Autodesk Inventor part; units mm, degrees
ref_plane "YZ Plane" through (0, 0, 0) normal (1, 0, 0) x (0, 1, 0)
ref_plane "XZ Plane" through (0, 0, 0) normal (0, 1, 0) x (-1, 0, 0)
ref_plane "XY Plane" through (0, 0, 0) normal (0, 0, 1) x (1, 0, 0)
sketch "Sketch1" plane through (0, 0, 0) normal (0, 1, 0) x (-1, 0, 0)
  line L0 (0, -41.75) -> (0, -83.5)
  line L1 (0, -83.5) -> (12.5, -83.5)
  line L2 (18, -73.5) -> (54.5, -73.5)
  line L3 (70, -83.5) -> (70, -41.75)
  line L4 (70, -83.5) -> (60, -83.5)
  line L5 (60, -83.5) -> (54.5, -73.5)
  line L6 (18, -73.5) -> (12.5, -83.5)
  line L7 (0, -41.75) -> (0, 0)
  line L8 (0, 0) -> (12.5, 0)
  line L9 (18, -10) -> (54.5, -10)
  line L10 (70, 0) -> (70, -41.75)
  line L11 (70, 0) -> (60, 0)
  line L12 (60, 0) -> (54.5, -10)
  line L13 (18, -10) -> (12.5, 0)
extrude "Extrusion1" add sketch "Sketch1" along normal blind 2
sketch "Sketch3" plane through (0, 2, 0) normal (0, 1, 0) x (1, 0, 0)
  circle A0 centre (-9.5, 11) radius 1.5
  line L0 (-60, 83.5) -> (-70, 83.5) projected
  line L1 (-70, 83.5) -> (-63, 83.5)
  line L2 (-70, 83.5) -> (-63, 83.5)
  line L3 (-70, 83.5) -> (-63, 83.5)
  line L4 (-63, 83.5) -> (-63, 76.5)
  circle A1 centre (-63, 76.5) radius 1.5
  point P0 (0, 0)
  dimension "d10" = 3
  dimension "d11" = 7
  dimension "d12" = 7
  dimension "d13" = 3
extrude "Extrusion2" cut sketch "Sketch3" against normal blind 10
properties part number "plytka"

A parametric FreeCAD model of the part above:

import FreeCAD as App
import Part
import Sketcher

V = App.Vector

doc = App.newDocument("Part")
body = doc.addObject("PartDesign::Body", "Body")

sketch1 = body.newObject("Sketcher::SketchObject", "Sketch")
sketch1.AttachmentSupport = (doc.getObject("XZ_Plane"), [""])
sketch1.MapMode = "FlatFace"
sketch1.addGeometry([
    Part.LineSegment(V(0, 0, 0), V(0, -84, 0)),
    Part.LineSegment(V(0, -84, 0), V(-12, -84, 0)),
    Part.LineSegment(V(-12, -84, 0), V(-18, -74, 0)),
    Part.LineSegment(V(-18, -74, 0), V(-54, -74, 0)),
    Part.LineSegment(V(-54, -74, 0), V(-60, -84, 0)),
    Part.LineSegment(V(-60, -84, 0), V(-70, -84, 0)),
    Part.LineSegment(V(-70, -84, 0), V(-70, 0, 0)),
    Part.LineSegment(V(-70, 0, 0), V(-60, 0, 0)),
    Part.LineSegment(V(-60, 0, 0), V(-54, -10, 0)),
    Part.LineSegment(V(-54, -10, 0), V(-18, -10, 0)),
    Part.LineSegment(V(-18, -10, 0), V(-12, 0, 0)),
    Part.LineSegment(V(-12, 0, 0), V(0, 0, 0)),
], False)
sketch1.addConstraint([
    Sketcher.Constraint("Coincident", 0, 2, 1, 1),
    Sketcher.Constraint("Coincident", 1, 2, 2, 1),
    Sketcher.Constraint("Coincident", 2, 2, 3, 1),
    Sketcher.Constraint("Coincident", 3, 2, 4, 1),
    Sketcher.Constraint("Coincident", 4, 2, 5, 1),
    Sketcher.Constraint("Coincident", 5, 2, 6, 1),
    Sketcher.Constraint("Coincident", 6, 2, 7, 1),
    Sketcher.Constraint("Coincident", 7, 2, 8, 1),
    Sketcher.Constraint("Coincident", 8, 2, 9, 1),
    Sketcher.Constraint("Coincident", 9, 2, 10, 1),
    Sketcher.Constraint("Coincident", 10, 2, 11, 1),
    Sketcher.Constraint("Coincident", 11, 2, 0, 1),
    Sketcher.Constraint("Vertical", 0),
    Sketcher.Constraint("Horizontal", 1),
    Sketcher.Constraint("Horizontal", 3),
    Sketcher.Constraint("Horizontal", 5),
    Sketcher.Constraint("Vertical", 6),
    Sketcher.Constraint("Horizontal", 7),
    Sketcher.Constraint("Horizontal", 9),
    Sketcher.Constraint("Horizontal", 11),
    Sketcher.Constraint("Coincident", 11, 2, -1, 1),
    Sketcher.Constraint("PointOnObject", 6, 2, -1),
    Sketcher.Constraint("Parallel", 2, 8),
    Sketcher.Constraint("Parallel", 4, 10),
    Sketcher.Constraint("Horizontal", 1, 2, 4, 2),
    Sketcher.Constraint("Vertical", 4, 2, 7, 2),
    Sketcher.Constraint("Vertical", 3, 2, 8, 2),
    Sketcher.Constraint("Vertical", 2, 2, 9, 2),
    Sketcher.Constraint("Vertical", 1, 2, 10, 2),
    Sketcher.Constraint("DistanceX", 5, 2, 5, 1, 10.0),
    Sketcher.Constraint("DistanceX", 1, 2, 1, 1, 12.5),
    Sketcher.Constraint("DistanceX", 3, 2, 3, 1, 36.5),
    Sketcher.Constraint("DistanceY", 0, 2, 0, 1, 83.5),
    Sketcher.Constraint("DistanceX", 2, 2, -1, 1, 18.0),
    Sketcher.Constraint("DistanceY", 8, 2, -1, 1, 10.0),
])
pad1 = body.newObject("PartDesign::Pad", "Pad")
pad1.Profile = sketch1
pad1.Length = 2
pad1.Reversed = True

sketch2 = body.newObject("Sketcher::SketchObject", "Sketch001")
sketch2.AttachmentSupport = (doc.getObject("XZ_Plane"), [""])
sketch2.MapMode = "FlatFace"
sketch2.AttachmentOffset = App.Placement(V(0, 0, -2), App.Rotation())
sketch2.addGeometry([
    Part.Circle(V(-9.5, -11, 0), V(0, 0, 1), 1.5),
    Part.Circle(V(-63, -76.5, 0), V(0, 0, 1), 1.5),
], False)
sketch2.addConstraint([
    Sketcher.Constraint("Equal", 0, 1),
    Sketcher.Constraint("Diameter", 0, 3.0),
    Sketcher.Constraint("DistanceY", 0, 3, -1, 1, 11.0),
    Sketcher.Constraint("DistanceX", 1, 3, -1, 1, 63.0),
    Sketcher.Constraint("DistanceX", 0, 3, -1, 1, 9.5),
    Sketcher.Constraint("DistanceY", 1, 3, -1, 1, 76.5),
])
pocket1 = body.newObject("PartDesign::Pocket", "Pocket")
pocket1.Profile = sketch2
pocket1.Length = 10
pocket1.Reversed = True

doc.recompute()
